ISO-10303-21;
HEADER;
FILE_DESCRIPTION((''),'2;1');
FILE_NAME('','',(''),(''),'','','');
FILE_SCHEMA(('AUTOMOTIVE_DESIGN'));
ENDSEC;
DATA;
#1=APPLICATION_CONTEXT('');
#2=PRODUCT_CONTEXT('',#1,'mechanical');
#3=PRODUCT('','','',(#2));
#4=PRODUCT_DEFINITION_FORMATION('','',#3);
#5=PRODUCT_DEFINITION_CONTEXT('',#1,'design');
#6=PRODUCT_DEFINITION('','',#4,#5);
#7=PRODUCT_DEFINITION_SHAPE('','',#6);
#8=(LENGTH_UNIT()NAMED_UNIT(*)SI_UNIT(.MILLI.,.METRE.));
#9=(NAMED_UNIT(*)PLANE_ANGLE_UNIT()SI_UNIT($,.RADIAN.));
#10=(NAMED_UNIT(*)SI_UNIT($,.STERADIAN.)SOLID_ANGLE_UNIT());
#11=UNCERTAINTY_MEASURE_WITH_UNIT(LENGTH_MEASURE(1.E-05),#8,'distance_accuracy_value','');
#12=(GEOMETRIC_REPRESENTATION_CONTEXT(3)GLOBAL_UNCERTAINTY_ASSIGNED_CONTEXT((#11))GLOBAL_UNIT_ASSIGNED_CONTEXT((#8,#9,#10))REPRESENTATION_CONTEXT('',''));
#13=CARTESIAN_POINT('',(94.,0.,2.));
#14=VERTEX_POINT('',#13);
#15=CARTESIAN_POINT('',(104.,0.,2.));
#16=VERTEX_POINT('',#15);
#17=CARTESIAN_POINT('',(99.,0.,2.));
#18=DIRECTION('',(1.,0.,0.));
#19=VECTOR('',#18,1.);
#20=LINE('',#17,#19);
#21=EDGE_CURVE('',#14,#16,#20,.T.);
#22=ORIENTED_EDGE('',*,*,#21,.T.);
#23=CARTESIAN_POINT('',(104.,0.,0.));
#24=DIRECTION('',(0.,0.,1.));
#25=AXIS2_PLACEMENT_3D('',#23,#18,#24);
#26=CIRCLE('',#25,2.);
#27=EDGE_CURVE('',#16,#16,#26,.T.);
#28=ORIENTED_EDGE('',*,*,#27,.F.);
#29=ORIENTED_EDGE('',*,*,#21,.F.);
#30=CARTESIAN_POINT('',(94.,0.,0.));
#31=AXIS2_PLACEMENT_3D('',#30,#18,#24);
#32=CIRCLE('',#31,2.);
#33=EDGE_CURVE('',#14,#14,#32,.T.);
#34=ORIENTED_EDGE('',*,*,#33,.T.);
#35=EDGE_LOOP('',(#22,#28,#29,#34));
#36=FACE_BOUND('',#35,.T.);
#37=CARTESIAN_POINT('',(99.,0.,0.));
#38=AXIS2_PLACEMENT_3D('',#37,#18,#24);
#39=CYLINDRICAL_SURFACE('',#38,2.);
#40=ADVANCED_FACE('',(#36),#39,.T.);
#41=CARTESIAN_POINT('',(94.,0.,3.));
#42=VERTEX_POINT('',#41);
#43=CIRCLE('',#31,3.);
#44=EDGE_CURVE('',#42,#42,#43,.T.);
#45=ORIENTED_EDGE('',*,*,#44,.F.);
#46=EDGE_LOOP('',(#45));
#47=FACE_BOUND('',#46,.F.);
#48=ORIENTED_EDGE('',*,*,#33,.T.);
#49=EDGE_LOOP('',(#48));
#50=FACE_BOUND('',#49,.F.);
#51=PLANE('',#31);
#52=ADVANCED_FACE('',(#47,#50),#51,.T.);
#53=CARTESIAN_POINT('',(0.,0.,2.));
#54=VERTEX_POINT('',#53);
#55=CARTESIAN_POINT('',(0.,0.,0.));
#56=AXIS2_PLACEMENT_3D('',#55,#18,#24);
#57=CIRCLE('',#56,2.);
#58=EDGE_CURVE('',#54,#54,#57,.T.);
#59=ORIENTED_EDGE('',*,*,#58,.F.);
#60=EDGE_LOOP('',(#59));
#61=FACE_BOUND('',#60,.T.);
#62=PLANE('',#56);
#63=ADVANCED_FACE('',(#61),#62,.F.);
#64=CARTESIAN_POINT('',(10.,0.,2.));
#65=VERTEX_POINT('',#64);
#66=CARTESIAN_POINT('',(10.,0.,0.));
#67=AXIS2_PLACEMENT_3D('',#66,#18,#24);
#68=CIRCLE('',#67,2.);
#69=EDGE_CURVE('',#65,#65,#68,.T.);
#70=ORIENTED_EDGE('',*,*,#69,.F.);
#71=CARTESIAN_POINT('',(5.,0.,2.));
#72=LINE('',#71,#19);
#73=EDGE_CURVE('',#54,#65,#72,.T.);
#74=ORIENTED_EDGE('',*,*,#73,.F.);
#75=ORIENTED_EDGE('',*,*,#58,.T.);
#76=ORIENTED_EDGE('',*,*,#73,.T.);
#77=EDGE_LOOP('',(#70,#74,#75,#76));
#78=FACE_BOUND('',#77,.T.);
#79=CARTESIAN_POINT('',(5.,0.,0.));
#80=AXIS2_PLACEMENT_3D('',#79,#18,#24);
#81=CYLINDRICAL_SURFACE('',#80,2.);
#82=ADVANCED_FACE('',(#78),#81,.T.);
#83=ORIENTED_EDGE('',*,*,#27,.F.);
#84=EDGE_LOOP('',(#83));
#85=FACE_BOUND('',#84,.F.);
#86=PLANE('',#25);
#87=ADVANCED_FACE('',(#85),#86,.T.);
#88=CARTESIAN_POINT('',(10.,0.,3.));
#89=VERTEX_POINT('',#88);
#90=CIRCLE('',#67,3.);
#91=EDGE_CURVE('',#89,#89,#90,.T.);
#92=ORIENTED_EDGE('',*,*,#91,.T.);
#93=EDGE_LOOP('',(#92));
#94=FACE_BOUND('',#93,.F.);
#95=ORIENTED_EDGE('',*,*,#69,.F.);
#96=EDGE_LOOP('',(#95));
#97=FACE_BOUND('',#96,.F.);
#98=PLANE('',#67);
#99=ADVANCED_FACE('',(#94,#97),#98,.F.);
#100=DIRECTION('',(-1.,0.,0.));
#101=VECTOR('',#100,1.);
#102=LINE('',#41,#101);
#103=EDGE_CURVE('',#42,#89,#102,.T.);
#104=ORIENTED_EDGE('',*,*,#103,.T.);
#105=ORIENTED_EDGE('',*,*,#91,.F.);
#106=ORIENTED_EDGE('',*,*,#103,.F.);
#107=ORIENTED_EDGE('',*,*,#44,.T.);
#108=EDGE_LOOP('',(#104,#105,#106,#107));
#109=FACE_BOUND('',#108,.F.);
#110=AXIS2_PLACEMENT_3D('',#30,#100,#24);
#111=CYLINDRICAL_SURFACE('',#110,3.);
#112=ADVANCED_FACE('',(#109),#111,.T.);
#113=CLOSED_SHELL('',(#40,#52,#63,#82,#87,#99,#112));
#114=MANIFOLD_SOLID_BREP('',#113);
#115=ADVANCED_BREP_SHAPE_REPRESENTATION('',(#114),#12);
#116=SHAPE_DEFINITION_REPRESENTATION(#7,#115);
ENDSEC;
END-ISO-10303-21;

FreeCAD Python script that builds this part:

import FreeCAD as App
import Part
import Sketcher

doc = App.newDocument("Part")
body = doc.addObject("PartDesign::Body", "Body")

# Sketch on XY plane
sketch1 = doc.addObject("Sketcher::SketchObject", "Sketch")
body.addObject(sketch1)
sketch1.AttachmentSupport = (doc.XY_Plane, [""])
sketch1.MapMode = "FlatFace"
sketch1.addGeometry([
    Part.LineSegment(App.Vector(0, 2, 0), App.Vector(0, 0, 0)),  # 0
    Part.LineSegment(App.Vector(0, 0, 0), App.Vector(104, 0, 0)),  # 1
    Part.LineSegment(App.Vector(104, 0, 0), App.Vector(104, 2, 0)),  # 2
    Part.LineSegment(App.Vector(104, 2, 0), App.Vector(94, 2, 0)),  # 3
    Part.LineSegment(App.Vector(94, 2, 0), App.Vector(94, 3, 0)),  # 4
    Part.LineSegment(App.Vector(94, 3, 0), App.Vector(10, 3, 0)),  # 5
    Part.LineSegment(App.Vector(10, 3, 0), App.Vector(10, 2, 0)),  # 6
    Part.LineSegment(App.Vector(10, 2, 0), App.Vector(0, 2, 0)),  # 7
], False)
sketch1.addConstraint([
    Sketcher.Constraint("Coincident", 0, 2, 1, 1),
    Sketcher.Constraint("Coincident", 1, 2, 2, 1),
    Sketcher.Constraint("Coincident", 2, 2, 3, 1),
    Sketcher.Constraint("Coincident", 3, 2, 4, 1),
    Sketcher.Constraint("Coincident", 4, 2, 5, 1),
    Sketcher.Constraint("Coincident", 5, 2, 6, 1),
    Sketcher.Constraint("Coincident", 6, 2, 7, 1),
    Sketcher.Constraint("Coincident", 7, 2, 0, 1),
    Sketcher.Constraint("Vertical", 0),
    Sketcher.Constraint("Horizontal", 1),
    Sketcher.Constraint("Vertical", 2),
    Sketcher.Constraint("Horizontal", 3),
    Sketcher.Constraint("Vertical", 4),
    Sketcher.Constraint("Horizontal", 5),
    Sketcher.Constraint("Vertical", 6),
    Sketcher.Constraint("Horizontal", 7),
    Sketcher.Constraint("Coincident", 0, 2, -1, 1),
    Sketcher.Constraint("Horizontal", 3, 2, 6, 2),
    Sketcher.Constraint("Equal", 3, 7),
    Sketcher.Constraint("DistanceX", 1, 1, 1, 2, 104.0),
    Sketcher.Constraint("DistanceX", 3, 2, 3, 1, 10.0),
    Sketcher.Constraint("DistanceY", 0, 2, 0, 1, 2.0),
    Sketcher.Constraint("DistanceY", 4, 1, 4, 2, 1.0),
])
revolution = doc.addObject("PartDesign::Revolution", "Revolution")
body.addObject(revolution)
revolution.Profile = sketch1
revolution.ReferenceAxis = (sketch1, ["H_Axis"])
revolution.Angle = 360

doc.recompute()
